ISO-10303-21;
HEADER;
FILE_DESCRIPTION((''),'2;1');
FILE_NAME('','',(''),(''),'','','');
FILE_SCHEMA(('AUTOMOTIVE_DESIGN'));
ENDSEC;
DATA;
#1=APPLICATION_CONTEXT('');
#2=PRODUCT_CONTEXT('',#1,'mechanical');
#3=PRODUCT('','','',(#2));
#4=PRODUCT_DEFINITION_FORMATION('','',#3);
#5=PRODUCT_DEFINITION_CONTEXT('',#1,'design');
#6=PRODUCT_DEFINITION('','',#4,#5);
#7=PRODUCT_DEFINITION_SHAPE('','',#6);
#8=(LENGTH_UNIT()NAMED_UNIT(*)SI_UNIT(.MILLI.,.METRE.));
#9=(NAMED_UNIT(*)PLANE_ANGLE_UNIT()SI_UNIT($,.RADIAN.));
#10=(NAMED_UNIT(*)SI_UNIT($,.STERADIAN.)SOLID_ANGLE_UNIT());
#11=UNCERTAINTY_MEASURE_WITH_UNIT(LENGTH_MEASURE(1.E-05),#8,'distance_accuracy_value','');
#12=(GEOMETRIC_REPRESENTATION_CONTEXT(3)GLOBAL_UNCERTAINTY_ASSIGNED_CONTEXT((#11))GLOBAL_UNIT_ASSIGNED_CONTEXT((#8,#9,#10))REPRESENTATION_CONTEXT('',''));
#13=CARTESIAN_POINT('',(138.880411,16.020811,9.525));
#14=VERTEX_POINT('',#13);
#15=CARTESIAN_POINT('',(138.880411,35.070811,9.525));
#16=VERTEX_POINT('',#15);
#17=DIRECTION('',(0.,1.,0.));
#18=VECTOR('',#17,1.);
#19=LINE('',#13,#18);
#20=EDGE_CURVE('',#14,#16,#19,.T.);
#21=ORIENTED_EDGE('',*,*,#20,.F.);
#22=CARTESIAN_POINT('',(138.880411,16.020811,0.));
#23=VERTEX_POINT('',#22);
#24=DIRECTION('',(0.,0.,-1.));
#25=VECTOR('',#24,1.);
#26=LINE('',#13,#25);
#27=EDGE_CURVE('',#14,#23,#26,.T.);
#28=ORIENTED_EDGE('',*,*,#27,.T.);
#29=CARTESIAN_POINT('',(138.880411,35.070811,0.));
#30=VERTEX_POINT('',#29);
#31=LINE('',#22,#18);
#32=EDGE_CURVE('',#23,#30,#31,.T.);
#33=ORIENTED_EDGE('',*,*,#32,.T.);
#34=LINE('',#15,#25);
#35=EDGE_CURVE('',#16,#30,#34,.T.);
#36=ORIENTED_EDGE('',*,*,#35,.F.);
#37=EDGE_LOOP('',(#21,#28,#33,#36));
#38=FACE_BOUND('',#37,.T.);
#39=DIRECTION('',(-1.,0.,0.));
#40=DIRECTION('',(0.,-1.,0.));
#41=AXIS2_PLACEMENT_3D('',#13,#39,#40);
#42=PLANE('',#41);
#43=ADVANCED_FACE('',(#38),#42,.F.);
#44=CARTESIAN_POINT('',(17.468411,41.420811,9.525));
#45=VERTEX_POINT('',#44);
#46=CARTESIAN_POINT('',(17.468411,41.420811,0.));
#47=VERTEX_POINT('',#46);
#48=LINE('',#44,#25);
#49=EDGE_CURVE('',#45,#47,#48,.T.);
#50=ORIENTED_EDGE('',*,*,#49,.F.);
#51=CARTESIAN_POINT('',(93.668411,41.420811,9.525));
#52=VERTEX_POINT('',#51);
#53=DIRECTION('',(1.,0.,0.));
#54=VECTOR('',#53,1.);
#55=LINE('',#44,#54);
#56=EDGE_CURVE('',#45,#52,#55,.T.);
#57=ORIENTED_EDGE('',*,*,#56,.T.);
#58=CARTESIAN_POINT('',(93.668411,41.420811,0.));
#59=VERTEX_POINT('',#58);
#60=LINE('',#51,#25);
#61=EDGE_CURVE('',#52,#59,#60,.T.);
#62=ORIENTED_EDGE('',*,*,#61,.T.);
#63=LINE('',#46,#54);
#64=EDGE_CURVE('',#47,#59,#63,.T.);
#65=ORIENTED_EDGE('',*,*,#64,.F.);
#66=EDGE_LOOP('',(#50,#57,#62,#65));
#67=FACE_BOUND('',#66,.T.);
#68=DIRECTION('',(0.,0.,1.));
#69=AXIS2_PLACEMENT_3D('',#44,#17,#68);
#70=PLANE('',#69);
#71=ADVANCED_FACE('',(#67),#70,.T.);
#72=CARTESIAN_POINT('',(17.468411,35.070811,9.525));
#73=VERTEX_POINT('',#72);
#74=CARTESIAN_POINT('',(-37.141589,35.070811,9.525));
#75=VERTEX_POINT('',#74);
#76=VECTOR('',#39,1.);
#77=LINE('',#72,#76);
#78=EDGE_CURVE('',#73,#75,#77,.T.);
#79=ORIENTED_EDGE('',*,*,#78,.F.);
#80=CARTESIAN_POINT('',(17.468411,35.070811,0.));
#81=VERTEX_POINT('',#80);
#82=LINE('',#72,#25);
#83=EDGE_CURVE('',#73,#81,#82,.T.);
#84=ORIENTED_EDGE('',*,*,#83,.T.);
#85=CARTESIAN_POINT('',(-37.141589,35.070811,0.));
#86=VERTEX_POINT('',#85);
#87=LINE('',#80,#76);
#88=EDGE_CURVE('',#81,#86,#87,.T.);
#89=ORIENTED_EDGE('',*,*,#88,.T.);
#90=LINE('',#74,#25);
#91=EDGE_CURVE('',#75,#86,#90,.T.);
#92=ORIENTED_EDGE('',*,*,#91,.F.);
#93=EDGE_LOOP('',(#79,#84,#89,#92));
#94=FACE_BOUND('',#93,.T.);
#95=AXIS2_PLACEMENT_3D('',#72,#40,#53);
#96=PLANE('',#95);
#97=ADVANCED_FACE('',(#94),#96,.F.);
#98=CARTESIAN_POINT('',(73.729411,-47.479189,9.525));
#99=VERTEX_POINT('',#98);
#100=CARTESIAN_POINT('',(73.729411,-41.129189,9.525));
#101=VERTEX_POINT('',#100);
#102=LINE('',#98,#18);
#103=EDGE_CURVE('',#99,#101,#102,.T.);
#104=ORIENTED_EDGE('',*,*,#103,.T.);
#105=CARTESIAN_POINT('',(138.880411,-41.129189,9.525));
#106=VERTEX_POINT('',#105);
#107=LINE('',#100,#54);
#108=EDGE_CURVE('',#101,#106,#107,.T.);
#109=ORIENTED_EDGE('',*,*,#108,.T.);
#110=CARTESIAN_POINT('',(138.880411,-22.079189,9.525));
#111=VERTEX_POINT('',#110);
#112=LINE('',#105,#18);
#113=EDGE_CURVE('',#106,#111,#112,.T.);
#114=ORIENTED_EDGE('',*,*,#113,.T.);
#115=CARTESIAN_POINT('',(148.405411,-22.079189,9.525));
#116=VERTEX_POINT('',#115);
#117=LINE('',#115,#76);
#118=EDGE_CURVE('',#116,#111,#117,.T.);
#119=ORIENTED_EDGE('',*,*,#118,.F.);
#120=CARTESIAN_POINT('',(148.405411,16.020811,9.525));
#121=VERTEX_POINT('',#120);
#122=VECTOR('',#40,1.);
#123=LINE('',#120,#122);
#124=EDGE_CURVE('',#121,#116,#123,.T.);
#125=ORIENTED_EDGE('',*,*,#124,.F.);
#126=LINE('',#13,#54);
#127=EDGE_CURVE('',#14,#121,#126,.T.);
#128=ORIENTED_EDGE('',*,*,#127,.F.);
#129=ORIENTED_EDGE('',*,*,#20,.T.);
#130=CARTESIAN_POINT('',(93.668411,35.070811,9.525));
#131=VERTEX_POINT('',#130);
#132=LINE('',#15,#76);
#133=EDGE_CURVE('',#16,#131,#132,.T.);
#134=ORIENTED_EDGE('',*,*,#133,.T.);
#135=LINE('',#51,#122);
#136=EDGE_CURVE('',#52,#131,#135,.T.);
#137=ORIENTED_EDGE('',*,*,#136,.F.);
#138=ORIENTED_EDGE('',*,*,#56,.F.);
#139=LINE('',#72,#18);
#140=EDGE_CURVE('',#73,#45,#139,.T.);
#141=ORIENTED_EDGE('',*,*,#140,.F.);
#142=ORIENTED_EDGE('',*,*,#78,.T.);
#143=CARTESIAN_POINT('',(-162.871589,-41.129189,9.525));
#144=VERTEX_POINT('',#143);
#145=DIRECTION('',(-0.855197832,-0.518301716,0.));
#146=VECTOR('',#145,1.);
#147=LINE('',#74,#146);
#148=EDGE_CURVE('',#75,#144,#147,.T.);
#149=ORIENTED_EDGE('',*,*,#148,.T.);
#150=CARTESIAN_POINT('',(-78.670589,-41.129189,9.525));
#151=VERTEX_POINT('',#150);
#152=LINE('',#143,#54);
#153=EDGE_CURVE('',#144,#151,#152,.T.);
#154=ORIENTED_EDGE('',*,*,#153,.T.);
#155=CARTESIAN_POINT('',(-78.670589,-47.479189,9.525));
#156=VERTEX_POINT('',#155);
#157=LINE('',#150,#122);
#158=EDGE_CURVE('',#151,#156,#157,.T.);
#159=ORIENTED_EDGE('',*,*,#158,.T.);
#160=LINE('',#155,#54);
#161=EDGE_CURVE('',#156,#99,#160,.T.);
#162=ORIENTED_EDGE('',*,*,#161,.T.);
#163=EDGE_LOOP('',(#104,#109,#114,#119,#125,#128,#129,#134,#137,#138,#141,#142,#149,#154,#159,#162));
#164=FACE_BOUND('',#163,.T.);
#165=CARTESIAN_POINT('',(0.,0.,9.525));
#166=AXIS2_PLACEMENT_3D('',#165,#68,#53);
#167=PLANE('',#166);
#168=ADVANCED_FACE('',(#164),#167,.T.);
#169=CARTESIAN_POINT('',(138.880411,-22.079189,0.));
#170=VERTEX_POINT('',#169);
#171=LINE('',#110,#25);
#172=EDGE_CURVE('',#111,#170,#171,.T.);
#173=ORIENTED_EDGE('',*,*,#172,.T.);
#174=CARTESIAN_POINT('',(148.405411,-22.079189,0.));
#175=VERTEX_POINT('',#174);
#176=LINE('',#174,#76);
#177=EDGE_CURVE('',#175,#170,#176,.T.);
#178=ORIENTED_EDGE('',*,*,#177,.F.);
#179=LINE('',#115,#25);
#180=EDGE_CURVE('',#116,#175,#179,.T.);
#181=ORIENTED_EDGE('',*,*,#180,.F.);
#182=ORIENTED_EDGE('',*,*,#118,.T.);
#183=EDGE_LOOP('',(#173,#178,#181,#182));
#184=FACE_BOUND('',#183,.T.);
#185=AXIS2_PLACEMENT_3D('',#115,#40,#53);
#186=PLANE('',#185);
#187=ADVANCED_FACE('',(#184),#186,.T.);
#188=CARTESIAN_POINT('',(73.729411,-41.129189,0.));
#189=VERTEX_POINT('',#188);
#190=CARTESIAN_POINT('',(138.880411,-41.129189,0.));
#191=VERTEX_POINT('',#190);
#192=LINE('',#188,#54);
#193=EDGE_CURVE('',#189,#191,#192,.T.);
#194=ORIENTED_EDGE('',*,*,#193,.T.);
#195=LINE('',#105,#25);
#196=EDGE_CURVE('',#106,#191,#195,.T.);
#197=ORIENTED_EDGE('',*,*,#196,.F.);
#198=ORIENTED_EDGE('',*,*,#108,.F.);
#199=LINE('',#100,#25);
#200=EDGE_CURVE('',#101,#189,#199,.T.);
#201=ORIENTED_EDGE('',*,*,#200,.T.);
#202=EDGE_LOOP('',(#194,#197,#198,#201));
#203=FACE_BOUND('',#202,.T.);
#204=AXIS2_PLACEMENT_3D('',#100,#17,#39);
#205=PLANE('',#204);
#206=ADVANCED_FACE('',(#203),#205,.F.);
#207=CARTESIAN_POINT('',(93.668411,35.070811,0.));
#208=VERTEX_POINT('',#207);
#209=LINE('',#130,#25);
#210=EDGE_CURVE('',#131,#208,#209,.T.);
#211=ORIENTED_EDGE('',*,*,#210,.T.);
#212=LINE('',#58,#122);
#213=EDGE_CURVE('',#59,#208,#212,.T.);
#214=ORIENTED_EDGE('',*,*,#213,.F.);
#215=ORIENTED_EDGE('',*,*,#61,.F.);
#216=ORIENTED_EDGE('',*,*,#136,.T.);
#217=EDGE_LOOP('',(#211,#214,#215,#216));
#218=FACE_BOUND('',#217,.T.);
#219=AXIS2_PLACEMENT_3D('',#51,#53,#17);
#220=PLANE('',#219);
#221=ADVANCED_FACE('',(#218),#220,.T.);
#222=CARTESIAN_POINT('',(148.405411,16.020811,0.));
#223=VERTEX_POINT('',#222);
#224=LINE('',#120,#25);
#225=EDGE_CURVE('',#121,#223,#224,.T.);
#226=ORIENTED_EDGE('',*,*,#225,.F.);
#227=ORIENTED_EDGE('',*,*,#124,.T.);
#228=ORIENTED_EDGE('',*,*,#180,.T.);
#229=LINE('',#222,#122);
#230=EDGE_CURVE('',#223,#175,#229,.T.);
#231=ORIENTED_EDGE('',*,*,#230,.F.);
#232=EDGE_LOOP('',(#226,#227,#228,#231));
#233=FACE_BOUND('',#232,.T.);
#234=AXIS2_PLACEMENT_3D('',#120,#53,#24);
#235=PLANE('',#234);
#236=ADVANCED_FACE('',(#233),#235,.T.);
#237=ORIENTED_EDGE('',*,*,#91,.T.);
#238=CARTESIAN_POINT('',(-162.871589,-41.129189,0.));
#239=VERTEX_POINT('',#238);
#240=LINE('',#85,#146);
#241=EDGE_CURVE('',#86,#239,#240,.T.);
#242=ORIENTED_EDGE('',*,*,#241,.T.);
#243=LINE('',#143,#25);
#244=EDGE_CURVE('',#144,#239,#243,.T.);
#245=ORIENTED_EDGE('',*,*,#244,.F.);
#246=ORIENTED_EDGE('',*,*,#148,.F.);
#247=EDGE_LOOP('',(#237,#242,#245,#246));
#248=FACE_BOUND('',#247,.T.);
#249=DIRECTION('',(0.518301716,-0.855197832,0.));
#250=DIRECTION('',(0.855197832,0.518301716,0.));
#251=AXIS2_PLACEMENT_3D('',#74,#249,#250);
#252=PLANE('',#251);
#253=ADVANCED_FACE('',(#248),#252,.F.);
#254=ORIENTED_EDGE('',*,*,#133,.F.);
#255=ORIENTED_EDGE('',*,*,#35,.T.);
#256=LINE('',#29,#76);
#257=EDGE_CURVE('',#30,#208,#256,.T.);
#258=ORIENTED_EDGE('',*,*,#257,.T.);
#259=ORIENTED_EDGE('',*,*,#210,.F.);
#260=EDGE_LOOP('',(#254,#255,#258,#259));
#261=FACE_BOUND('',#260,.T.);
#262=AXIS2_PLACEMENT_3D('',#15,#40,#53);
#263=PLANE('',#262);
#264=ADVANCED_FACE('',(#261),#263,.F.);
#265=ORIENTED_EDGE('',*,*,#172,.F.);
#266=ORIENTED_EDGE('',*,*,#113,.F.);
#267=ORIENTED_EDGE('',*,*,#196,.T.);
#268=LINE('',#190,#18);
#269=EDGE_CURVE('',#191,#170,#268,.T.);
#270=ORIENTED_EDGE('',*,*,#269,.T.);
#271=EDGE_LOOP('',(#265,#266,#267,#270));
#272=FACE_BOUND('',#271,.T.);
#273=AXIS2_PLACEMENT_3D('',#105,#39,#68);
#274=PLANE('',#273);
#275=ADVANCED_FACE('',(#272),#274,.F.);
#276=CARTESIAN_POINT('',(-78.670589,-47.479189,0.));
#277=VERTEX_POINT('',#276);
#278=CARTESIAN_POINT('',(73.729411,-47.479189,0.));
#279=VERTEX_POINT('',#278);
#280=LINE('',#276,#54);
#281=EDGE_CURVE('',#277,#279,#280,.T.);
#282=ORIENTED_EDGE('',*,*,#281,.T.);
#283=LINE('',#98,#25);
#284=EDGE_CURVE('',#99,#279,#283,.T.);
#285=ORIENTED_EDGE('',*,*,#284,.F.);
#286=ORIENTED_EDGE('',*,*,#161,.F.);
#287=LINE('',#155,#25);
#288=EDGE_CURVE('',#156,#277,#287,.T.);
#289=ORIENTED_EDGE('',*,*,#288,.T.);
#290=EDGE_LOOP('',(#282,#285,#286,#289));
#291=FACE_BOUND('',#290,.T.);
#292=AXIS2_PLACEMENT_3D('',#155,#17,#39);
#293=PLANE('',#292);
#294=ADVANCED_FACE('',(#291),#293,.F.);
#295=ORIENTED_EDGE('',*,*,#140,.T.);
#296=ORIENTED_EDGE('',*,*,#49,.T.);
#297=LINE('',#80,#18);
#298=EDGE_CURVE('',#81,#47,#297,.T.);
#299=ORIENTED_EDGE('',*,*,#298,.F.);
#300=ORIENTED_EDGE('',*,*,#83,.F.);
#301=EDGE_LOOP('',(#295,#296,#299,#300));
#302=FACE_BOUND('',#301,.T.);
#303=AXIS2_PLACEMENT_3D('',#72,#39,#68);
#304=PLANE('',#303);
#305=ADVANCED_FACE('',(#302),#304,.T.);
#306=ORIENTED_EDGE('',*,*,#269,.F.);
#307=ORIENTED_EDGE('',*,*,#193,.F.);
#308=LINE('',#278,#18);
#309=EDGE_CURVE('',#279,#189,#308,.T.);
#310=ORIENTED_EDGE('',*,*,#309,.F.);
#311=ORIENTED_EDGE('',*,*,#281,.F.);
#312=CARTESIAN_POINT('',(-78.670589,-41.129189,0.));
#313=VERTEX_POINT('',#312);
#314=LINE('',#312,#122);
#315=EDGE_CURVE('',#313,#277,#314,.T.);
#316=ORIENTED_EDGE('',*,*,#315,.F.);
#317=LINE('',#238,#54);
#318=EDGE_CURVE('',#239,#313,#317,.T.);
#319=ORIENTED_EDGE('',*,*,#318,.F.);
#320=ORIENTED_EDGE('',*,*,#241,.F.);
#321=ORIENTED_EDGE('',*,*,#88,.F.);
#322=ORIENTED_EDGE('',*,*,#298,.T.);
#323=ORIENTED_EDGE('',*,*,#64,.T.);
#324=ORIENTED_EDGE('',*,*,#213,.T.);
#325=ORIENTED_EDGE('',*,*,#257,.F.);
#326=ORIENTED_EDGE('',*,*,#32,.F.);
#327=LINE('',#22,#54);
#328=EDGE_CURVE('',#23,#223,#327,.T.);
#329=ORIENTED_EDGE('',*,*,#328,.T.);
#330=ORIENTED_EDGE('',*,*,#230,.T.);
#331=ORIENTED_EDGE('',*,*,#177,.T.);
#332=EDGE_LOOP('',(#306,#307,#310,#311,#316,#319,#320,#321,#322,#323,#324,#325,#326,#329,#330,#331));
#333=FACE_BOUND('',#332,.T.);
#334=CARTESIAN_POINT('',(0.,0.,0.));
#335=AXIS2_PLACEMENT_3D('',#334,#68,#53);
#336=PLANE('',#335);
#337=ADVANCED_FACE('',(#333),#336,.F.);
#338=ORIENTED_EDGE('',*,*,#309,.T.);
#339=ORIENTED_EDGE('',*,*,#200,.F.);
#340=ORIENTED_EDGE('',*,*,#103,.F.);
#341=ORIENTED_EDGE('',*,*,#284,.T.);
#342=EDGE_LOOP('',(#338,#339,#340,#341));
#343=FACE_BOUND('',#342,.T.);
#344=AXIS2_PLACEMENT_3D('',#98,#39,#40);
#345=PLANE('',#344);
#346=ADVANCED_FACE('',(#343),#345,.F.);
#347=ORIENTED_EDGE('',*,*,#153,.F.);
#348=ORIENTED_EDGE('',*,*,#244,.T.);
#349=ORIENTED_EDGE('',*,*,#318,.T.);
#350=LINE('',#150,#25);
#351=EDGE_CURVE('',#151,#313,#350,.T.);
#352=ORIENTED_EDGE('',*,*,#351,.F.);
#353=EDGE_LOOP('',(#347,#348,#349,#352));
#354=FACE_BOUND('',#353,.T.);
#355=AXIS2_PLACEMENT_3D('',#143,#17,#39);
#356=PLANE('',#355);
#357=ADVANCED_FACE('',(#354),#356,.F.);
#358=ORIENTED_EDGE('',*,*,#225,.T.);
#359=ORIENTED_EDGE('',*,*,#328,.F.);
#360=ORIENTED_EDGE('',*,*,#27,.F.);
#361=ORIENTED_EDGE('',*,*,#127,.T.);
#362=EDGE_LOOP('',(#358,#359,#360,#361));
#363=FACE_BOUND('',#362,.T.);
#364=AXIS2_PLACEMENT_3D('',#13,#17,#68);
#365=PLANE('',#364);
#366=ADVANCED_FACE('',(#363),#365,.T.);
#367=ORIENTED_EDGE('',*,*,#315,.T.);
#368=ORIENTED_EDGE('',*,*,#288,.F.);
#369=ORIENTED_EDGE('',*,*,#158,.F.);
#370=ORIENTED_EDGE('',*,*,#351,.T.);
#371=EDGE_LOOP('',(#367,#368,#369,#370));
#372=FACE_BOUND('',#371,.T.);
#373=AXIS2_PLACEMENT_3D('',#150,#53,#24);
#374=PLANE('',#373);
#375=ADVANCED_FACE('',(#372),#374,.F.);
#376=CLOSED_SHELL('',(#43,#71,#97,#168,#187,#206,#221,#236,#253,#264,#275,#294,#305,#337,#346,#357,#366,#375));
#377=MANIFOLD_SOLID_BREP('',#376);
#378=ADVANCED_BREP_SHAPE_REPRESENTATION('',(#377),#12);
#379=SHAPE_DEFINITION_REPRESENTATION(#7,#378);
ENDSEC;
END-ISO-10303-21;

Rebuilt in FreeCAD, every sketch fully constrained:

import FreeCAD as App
import Part
import Sketcher
Q = App.Units.Quantity

doc = App.newDocument("Part")
params = doc.addObject("Spreadsheet::Sheet", "Params")
for row, (alias, value) in enumerate([
    ("sketch1_width", "3 in"),
    ("sketch1_width2", "6 in"),
    ("sketch1_height", "1.5 in"),
    ("sketch1_width3", "1.78 in"),
    ("sketch1_width4", "2.15 in"),
    ("pad1_length", "0.375 in"),
], start=1):
    params.set(f"A{row}", alias)
    params.set(f"B{row}", "=" + value)
    params.setAlias(f"B{row}", alias)

body = doc.addObject("PartDesign::Body", "Body")

sketch1 = body.newObject("Sketcher::SketchObject", "Sketch")
sketch1.AttachmentSupport = (doc.getObject("XY_Plane"), [""])
sketch1.MapMode = "FlatFace"
sketch1.addGeometry([
    Part.LineSegment(App.Vector(139, 35, 0), App.Vector(94, 35, 0)),
    Part.LineSegment(App.Vector(94, 35, 0), App.Vector(94, 41, 0)),
    Part.LineSegment(App.Vector(94, 41, 0), App.Vector(17, 41, 0)),
    Part.LineSegment(App.Vector(17, 41, 0), App.Vector(17, 35, 0)),
    Part.LineSegment(App.Vector(17, 35, 0), App.Vector(-37, 35, 0)),
    Part.LineSegment(App.Vector(-37, 35, 0), App.Vector(-163, -41, 0)),
    Part.LineSegment(App.Vector(-163, -41, 0), App.Vector(-79, -41, 0)),
    Part.LineSegment(App.Vector(-79, -41, 0), App.Vector(-79, -47, 0)),
    Part.LineSegment(App.Vector(-79, -47, 0), App.Vector(74, -47, 0)),
    Part.LineSegment(App.Vector(74, -47, 0), App.Vector(74, -41, 0)),
    Part.LineSegment(App.Vector(74, -41, 0), App.Vector(139, -41, 0)),
    Part.LineSegment(App.Vector(139, -41, 0), App.Vector(139, -22, 0)),
    Part.LineSegment(App.Vector(139, -22, 0), App.Vector(148, -22, 0)),
    Part.LineSegment(App.Vector(148, -22, 0), App.Vector(148, 16, 0)),
    Part.LineSegment(App.Vector(148, 16, 0), App.Vector(139, 16, 0)),
    Part.LineSegment(App.Vector(139, 16, 0), App.Vector(139, 35, 0)),
], False)
sketch1.addConstraint([
    Sketcher.Constraint("Coincident", 0, 2, 1, 1),
    Sketcher.Constraint("Coincident", 1, 2, 2, 1),
    Sketcher.Constraint("Coincident", 2, 2, 3, 1),
    Sketcher.Constraint("Coincident", 3, 2, 4, 1),
    Sketcher.Constraint("Coincident", 4, 2, 5, 1),
    Sketcher.Constraint("Coincident", 5, 2, 6, 1),
    Sketcher.Constraint("Coincident", 6, 2, 7, 1),
    Sketcher.Constraint("Coincident", 7, 2, 8, 1),
    Sketcher.Constraint("Coincident", 8, 2, 9, 1),
    Sketcher.Constraint("Coincident", 9, 2, 10, 1),
    Sketcher.Constraint("Coincident", 10, 2, 11, 1),
    Sketcher.Constraint("Coincident", 11, 2, 12, 1),
    Sketcher.Constraint("Coincident", 12, 2, 13, 1),
    Sketcher.Constraint("Coincident", 13, 2, 14, 1),
    Sketcher.Constraint("Coincident", 14, 2, 15, 1),
    Sketcher.Constraint("Coincident", 15, 2, 0, 1),
    Sketcher.Constraint("Horizontal", 0),
    Sketcher.Constraint("Vertical", 1),
    Sketcher.Constraint("Horizontal", 2),
    Sketcher.Constraint("Vertical", 3),
    Sketcher.Constraint("Horizontal", 4),
    Sketcher.Constraint("Horizontal", 6),
    Sketcher.Constraint("Vertical", 7),
    Sketcher.Constraint("Horizontal", 8),
    Sketcher.Constraint("Vertical", 9),
    Sketcher.Constraint("Horizontal", 10),
    Sketcher.Constraint("Vertical", 11),
    Sketcher.Constraint("Horizontal", 12),
    Sketcher.Constraint("Vertical", 13),
    Sketcher.Constraint("Horizontal", 14),
    Sketcher.Constraint("Vertical", 15),
    Sketcher.Constraint("Horizontal", 0, 2, 3, 2),
    Sketcher.Constraint("Horizontal", 6, 2, 9, 2),
    Sketcher.Constraint("Vertical", 11, 2, 14, 2),
    Sketcher.Constraint("Equal", 3, 7),
    Sketcher.Constraint("Equal", 11, 15),
    Sketcher.Constraint("DistanceX", 2, 2, 2, 1, Q("3 in")),
    Sketcher.Constraint("DistanceX", 8, 1, 8, 2, Q("6 in")),
    Sketcher.Constraint("DistanceY", 13, 1, 13, 2, Q("1.5 in")),
    Sketcher.Constraint("DistanceY", 5, 2, 4, 2, Q("3 in")),
    Sketcher.Constraint("DistanceY", 8, 2, 11, 2, Q("1 in")),
    Sketcher.Constraint("DistanceX", 0, 2, 0, 1, Q("1.78 in")),
    Sketcher.Constraint("DistanceX", 4, 2, 4, 1, Q("2.15 in")),
    Sketcher.Constraint("DistanceX", 5, 2, 3, 2, Q("7.1 in")),
    Sketcher.Constraint("DistanceX", 6, 1, 6, 2, Q("3.315 in")),
    Sketcher.Constraint("DistanceX", 12, 1, 12, 2, Q("0.375 in")),
    Sketcher.Constraint("DistanceX", -1, 1, 0, 2, 93.668411),
    Sketcher.Constraint("DistanceY", -1, 1, 0, 2, 35.070811),
])
sketch1.setExpression("Constraints[36]", "Params.sketch1_width")
sketch1.setExpression("Constraints[37]", "Params.sketch1_width2")
sketch1.setExpression("Constraints[38]", "Params.sketch1_height")
sketch1.setExpression("Constraints[41]", "Params.sketch1_width3")
sketch1.setExpression("Constraints[42]", "Params.sketch1_width4")
pad1 = body.newObject("PartDesign::Pad", "Pad")
pad1.Profile = sketch1
pad1.setExpression("Length", "Params.pad1_length")

doc.recompute()
